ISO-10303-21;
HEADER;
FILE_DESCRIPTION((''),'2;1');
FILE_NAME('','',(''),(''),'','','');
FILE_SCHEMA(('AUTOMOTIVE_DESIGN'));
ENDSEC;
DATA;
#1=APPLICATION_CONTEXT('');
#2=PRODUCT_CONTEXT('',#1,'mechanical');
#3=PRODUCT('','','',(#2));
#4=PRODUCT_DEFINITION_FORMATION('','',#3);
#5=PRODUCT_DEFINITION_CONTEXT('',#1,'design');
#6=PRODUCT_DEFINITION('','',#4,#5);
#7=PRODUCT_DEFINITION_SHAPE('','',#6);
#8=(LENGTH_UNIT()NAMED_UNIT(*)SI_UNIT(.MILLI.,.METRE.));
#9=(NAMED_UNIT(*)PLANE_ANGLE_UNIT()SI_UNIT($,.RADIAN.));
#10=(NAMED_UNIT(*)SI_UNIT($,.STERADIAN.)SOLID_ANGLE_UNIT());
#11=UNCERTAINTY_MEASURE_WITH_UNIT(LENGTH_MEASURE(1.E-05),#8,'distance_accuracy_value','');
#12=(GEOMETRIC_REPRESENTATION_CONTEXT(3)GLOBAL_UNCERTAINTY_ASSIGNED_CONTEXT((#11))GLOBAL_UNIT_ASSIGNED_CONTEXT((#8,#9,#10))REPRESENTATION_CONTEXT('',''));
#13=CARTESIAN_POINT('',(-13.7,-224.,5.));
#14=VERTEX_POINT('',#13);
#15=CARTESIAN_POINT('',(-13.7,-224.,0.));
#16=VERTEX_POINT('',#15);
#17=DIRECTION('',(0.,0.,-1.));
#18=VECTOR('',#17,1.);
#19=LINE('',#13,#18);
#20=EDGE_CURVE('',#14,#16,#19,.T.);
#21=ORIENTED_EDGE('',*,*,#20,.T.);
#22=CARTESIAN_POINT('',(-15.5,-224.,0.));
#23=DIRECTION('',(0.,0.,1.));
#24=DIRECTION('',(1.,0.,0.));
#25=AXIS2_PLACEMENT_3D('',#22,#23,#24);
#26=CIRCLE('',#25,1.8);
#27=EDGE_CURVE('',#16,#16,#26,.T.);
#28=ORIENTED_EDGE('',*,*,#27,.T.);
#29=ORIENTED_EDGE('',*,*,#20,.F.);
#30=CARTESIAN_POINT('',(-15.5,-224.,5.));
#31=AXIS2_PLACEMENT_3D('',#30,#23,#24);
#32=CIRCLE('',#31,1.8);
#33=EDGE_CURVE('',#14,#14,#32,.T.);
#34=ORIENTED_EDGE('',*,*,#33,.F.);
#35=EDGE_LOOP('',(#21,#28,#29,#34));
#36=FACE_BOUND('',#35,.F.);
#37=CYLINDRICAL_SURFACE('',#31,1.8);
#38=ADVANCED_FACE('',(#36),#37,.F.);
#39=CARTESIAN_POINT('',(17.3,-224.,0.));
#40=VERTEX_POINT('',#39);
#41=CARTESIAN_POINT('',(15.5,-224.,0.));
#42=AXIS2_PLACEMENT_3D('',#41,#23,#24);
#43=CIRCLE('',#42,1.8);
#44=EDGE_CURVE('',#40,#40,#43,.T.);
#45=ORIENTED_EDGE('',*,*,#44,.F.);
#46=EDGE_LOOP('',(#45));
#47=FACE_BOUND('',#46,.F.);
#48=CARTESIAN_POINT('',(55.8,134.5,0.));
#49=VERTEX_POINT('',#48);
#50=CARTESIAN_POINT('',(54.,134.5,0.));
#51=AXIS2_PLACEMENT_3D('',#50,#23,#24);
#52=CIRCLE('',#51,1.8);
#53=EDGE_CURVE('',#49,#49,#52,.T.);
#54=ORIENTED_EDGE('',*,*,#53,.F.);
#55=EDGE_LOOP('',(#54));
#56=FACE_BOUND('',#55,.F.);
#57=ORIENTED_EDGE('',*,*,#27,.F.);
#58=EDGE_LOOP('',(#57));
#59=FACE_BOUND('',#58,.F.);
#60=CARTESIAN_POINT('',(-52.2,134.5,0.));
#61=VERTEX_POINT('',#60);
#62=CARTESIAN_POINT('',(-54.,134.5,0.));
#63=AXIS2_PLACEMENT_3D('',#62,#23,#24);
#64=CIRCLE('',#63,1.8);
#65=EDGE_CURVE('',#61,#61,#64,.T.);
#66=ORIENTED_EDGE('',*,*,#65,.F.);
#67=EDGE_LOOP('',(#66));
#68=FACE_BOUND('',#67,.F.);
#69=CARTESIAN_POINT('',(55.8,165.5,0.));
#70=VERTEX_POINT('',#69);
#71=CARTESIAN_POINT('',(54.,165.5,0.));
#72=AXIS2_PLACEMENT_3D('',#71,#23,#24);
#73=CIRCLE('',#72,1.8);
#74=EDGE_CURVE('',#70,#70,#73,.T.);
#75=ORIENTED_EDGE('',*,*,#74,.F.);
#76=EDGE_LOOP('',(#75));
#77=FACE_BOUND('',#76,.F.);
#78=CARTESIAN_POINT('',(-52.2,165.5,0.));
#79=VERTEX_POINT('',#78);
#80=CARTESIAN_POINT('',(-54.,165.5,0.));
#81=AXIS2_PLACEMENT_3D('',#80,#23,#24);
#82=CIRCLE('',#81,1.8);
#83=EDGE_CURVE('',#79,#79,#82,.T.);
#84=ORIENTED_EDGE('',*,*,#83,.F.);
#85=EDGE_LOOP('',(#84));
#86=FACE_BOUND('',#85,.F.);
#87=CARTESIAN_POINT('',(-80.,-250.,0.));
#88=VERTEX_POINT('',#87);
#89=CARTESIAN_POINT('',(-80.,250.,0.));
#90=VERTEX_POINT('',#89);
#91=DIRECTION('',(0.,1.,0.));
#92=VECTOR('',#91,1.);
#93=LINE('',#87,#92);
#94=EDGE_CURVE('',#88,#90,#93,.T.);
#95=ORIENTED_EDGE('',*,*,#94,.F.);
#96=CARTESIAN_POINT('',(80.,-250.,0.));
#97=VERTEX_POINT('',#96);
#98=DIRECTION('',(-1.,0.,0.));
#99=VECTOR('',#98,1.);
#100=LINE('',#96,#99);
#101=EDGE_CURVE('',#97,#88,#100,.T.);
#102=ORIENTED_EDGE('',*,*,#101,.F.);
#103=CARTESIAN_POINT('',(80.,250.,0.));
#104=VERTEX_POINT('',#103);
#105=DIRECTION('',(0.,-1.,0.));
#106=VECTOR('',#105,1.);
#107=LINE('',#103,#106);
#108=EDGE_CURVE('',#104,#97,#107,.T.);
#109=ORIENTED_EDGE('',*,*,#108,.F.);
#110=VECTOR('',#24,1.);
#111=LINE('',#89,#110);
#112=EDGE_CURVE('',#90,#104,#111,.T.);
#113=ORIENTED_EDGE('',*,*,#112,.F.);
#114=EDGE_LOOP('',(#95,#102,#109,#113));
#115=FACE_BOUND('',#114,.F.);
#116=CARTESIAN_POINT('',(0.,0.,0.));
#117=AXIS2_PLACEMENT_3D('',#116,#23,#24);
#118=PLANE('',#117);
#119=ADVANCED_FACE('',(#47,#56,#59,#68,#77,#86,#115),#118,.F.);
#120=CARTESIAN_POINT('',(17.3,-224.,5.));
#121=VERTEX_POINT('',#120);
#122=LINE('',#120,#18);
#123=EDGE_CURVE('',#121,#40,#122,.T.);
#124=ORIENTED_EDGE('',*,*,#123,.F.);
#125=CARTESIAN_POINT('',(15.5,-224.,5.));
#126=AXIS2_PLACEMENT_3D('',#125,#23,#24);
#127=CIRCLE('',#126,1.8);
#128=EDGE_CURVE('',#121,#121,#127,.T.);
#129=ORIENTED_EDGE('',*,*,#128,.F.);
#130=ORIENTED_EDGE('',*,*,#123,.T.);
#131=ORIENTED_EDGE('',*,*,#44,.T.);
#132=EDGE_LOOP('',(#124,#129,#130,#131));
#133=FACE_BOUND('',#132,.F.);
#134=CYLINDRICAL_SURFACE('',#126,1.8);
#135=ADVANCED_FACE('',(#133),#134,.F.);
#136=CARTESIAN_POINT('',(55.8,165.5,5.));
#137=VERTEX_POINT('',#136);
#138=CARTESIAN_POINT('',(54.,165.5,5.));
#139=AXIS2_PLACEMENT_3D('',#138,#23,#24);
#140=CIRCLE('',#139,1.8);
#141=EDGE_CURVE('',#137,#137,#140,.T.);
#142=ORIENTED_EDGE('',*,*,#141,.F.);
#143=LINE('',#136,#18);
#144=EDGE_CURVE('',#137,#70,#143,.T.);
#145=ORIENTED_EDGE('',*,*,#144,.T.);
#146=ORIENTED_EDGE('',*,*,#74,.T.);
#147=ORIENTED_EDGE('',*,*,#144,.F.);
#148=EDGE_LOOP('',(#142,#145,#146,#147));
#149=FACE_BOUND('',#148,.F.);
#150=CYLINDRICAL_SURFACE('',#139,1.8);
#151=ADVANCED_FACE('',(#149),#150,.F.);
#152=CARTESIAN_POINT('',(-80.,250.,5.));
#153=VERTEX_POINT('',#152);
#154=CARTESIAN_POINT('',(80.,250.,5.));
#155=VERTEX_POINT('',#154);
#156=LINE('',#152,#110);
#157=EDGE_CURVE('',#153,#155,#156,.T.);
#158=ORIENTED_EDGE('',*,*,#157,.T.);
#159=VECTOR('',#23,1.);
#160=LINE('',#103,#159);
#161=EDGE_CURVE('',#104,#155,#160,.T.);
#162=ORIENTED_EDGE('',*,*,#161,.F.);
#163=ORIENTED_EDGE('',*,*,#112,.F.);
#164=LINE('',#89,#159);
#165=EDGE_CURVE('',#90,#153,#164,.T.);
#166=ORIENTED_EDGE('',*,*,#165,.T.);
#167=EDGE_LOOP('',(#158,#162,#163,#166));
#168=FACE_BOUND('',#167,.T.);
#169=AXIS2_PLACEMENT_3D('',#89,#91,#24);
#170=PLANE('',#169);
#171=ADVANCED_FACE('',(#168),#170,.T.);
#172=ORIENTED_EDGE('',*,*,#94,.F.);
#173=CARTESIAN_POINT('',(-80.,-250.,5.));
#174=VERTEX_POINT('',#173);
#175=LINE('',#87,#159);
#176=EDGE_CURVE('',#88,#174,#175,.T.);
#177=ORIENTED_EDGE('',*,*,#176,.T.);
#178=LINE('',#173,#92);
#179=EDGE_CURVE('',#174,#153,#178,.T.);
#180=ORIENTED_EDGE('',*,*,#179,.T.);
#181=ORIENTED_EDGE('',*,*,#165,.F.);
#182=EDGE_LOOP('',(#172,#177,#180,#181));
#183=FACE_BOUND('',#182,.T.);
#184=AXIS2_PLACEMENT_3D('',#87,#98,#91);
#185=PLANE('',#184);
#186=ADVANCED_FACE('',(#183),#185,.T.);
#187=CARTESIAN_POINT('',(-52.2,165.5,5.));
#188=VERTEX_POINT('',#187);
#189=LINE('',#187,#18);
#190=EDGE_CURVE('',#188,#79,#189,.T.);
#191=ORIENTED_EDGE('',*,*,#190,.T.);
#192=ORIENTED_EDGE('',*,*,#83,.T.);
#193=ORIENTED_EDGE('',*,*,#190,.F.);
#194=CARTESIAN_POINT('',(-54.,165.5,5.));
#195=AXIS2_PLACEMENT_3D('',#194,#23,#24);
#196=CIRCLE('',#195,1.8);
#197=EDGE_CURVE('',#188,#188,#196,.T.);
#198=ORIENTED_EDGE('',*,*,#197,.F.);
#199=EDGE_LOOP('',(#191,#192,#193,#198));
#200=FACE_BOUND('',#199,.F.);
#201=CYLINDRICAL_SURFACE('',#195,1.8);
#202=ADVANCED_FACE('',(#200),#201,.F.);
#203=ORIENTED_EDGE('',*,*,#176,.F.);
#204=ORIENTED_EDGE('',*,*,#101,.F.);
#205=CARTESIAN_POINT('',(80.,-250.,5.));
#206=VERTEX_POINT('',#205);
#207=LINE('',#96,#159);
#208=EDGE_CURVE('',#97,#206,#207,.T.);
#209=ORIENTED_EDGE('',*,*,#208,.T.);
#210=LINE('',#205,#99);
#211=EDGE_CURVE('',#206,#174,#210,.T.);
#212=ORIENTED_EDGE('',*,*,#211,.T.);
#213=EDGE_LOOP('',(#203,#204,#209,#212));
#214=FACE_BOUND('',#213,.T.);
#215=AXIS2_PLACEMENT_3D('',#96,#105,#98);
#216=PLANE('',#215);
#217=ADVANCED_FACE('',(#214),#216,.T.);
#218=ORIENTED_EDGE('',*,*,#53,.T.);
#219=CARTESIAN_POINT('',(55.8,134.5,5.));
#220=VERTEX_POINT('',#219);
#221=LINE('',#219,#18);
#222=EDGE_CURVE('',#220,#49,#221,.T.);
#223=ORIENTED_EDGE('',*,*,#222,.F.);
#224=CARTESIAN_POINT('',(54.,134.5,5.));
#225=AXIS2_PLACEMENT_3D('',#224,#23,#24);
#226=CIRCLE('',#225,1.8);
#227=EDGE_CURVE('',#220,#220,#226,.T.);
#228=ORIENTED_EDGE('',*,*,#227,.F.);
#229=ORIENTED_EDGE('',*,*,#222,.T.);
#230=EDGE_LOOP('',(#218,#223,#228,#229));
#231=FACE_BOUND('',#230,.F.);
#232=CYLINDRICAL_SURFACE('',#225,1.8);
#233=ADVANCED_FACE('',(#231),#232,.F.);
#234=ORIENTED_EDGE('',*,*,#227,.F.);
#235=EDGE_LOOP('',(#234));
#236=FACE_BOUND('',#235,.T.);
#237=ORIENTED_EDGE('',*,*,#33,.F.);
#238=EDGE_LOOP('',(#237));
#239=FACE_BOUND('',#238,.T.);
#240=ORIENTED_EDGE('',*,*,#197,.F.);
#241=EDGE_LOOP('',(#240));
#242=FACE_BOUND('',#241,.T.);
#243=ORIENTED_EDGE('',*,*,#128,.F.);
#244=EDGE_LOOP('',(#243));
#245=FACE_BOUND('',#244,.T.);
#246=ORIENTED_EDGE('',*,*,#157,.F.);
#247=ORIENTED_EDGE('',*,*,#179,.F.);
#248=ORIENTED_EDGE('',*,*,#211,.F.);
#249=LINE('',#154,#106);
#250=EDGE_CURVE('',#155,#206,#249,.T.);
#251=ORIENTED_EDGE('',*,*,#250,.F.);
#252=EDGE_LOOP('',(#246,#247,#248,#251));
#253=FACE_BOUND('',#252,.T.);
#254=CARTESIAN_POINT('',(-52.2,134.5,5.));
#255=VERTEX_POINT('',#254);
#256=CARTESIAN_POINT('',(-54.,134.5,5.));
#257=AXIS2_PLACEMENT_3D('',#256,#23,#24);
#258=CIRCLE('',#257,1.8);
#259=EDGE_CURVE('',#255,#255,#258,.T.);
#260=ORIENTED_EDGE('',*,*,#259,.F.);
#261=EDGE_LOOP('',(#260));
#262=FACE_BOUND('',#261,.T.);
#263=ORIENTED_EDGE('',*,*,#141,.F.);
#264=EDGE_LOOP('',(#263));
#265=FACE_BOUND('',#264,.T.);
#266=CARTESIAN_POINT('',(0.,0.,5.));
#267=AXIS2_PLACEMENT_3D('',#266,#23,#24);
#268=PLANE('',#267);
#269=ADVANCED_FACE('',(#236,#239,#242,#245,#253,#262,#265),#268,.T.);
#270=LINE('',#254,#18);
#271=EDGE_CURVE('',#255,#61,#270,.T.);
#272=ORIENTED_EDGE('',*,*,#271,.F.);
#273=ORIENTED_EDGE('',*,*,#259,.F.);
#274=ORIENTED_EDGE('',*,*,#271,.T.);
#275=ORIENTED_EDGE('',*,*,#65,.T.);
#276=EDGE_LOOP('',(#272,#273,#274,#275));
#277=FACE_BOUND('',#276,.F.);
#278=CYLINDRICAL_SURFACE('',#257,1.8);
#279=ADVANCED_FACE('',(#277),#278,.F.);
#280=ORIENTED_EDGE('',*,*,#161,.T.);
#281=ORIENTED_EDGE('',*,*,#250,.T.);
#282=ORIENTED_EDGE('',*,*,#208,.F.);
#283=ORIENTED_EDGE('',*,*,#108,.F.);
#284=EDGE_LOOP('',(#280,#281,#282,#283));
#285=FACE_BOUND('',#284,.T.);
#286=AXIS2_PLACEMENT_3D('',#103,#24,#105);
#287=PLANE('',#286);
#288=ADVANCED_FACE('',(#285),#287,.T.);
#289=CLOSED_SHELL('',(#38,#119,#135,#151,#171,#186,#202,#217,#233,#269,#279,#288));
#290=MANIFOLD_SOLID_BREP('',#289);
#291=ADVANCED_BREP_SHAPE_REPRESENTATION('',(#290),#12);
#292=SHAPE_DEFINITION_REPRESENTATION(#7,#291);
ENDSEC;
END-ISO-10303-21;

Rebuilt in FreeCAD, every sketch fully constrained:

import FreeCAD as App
import Part
import Sketcher
from FreeCAD import Vector


def add_polygon(sketch, points):
    """Adds a closed chain of lines whose ends are joined by coincident constraints."""
    first, n = sketch.GeometryCount, len(points)
    for a, b in zip(points, points[1:] + points[:1]):
        sketch.addGeometry(Part.LineSegment(App.Vector(*a, 0), App.Vector(*b, 0)), False)
    for i in range(n):
        sketch.addConstraint(Sketcher.Constraint("Coincident", first + i, 2, first + (i + 1) % n, 1))

doc = App.newDocument("Part")
body = doc.addObject("PartDesign::Body", "Body")

sketch1 = body.newObject("Sketcher::SketchObject", "Sketch")
sketch1.AttachmentSupport = (doc.getObject("XY_Plane"), [""])
sketch1.MapMode = "FlatFace"
add_polygon(sketch1, [(80, 250), (-80, 250), (-80, -250), (80, -250)])
sketch1.addConstraint(Sketcher.Constraint("Horizontal", 0))
sketch1.addConstraint(Sketcher.Constraint("Vertical", 1))
sketch1.addConstraint(Sketcher.Constraint("Horizontal", 2))
sketch1.addConstraint(Sketcher.Constraint("Vertical", 3))
sketch1.addConstraint(Sketcher.Constraint("Symmetric", 0, 2, 2, 2, -1, 1))
sketch1.addConstraint(Sketcher.Constraint("DistanceX", 0, 2, 0, 1, 160.0))
sketch1.addConstraint(Sketcher.Constraint("DistanceY", 1, 2, 1, 1, 500.0))
pad1 = body.newObject("PartDesign::Pad", "Pad")
pad1.Profile = sketch1
pad1.Length = 5

sketch2 = body.newObject("Sketcher::SketchObject", "Sketch001")
sketch2.AttachmentSupport = (doc.getObject("XY_Plane"), [""])
sketch2.MapMode = "FlatFace"
sketch2.AttachmentOffset = App.Placement(Vector(0, 0, 5), App.Rotation())
sketch2.addGeometry(Part.Circle(Vector(15.5, -224, 0), Vector(0, 0, 1), 1.8), False)
sketch2.addConstraint(Sketcher.Constraint("Diameter", 0, 3.6))
sketch2.addConstraint(Sketcher.Constraint("DistanceY", 0, 3, -1, 1, 224.0))
sketch2.addConstraint(Sketcher.Constraint("DistanceX", -1, 1, 0, 3, 15.5))
pocket1 = body.newObject("PartDesign::Pocket", "Pocket")
pocket1.Profile = sketch2
pocket1.Type = "ThroughAll"

sketch3 = body.newObject("Sketcher::SketchObject", "Sketch002")
sketch3.AttachmentSupport = (doc.getObject("XY_Plane"), [""])
sketch3.MapMode = "FlatFace"
sketch3.AttachmentOffset = App.Placement(Vector(0, 0, 5), App.Rotation())
sketch3.addGeometry(Part.Circle(Vector(-15.5, -224, 0), Vector(0, 0, 1), 1.8), False)
sketch3.addConstraint(Sketcher.Constraint("Diameter", 0, 3.6))
sketch3.addConstraint(Sketcher.Constraint("DistanceY", 0, 3, -1, 1, 224.0))
sketch3.addConstraint(Sketcher.Constraint("DistanceX", 0, 3, -1, 1, 15.5))
pocket2 = body.newObject("PartDesign::Pocket", "Pocket001")
pocket2.Profile = sketch3
pocket2.Type = "ThroughAll"

sketch4 = body.newObject("Sketcher::SketchObject", "Sketch003")
sketch4.AttachmentSupport = (doc.getObject("XY_Plane"), [""])
sketch4.MapMode = "FlatFace"
sketch4.AttachmentOffset = App.Placement(Vector(0, 0, 5), App.Rotation())
sketch4.addGeometry(Part.Circle(Vector(54, 165.5, 0), Vector(0, 0, 1), 1.8), False)
sketch4.addConstraint(Sketcher.Constraint("Diameter", 0, 3.6))
sketch4.addConstraint(Sketcher.Constraint("DistanceX", -1, 1, 0, 3, 54.0))
sketch4.addConstraint(Sketcher.Constraint("DistanceY", -1, 1, 0, 3, 165.5))
pocket3 = body.newObject("PartDesign::Pocket", "Pocket002")
pocket3.Profile = sketch4
pocket3.Type = "ThroughAll"

sketch5 = body.newObject("Sketcher::SketchObject", "Sketch004")
sketch5.AttachmentSupport = (doc.getObject("XY_Plane"), [""])
sketch5.MapMode = "FlatFace"
sketch5.AttachmentOffset = App.Placement(Vector(0, 0, 5), App.Rotation())
sketch5.addGeometry(Part.Circle(Vector(54, 134.5, 0), Vector(0, 0, 1), 1.8), False)
sketch5.addConstraint(Sketcher.Constraint("Diameter", 0, 3.6))
sketch5.addConstraint(Sketcher.Constraint("DistanceX", -1, 1, 0, 3, 54.0))
sketch5.addConstraint(Sketcher.Constraint("DistanceY", -1, 1, 0, 3, 134.5))
pocket4 = body.newObject("PartDesign::Pocket", "Pocket003")
pocket4.Profile = sketch5
pocket4.Type = "ThroughAll"

sketch6 = body.newObject("Sketcher::SketchObject", "Sketch005")
sketch6.AttachmentSupport = (doc.getObject("XY_Plane"), [""])
sketch6.MapMode = "FlatFace"
sketch6.AttachmentOffset = App.Placement(Vector(0, 0, 5), App.Rotation())
sketch6.addGeometry(Part.Circle(Vector(-54, 165.5, 0), Vector(0, 0, 1), 1.8), False)
sketch6.addConstraint(Sketcher.Constraint("Diameter", 0, 3.6))
sketch6.addConstraint(Sketcher.Constraint("DistanceX", 0, 3, -1, 1, 54.0))
sketch6.addConstraint(Sketcher.Constraint("DistanceY", -1, 1, 0, 3, 165.5))
pocket5 = body.newObject("PartDesign::Pocket", "Pocket004")
pocket5.Profile = sketch6
pocket5.Type = "ThroughAll"

sketch7 = body.newObject("Sketcher::SketchObject", "Sketch006")
sketch7.AttachmentSupport = (doc.getObject("XY_Plane"), [""])
sketch7.MapMode = "FlatFace"
sketch7.AttachmentOffset = App.Placement(Vector(0, 0, 5), App.Rotation())
sketch7.addGeometry(Part.Circle(Vector(-54, 134.5, 0), Vector(0, 0, 1), 1.8), False)
sketch7.addConstraint(Sketcher.Constraint("Diameter", 0, 3.6))
sketch7.addConstraint(Sketcher.Constraint("DistanceX", 0, 3, -1, 1, 54.0))
sketch7.addConstraint(Sketcher.Constraint("DistanceY", -1, 1, 0, 3, 134.5))
pocket6 = body.newObject("PartDesign::Pocket", "Pocket005")
pocket6.Profile = sketch7
pocket6.Type = "ThroughAll"

doc.recompute()
